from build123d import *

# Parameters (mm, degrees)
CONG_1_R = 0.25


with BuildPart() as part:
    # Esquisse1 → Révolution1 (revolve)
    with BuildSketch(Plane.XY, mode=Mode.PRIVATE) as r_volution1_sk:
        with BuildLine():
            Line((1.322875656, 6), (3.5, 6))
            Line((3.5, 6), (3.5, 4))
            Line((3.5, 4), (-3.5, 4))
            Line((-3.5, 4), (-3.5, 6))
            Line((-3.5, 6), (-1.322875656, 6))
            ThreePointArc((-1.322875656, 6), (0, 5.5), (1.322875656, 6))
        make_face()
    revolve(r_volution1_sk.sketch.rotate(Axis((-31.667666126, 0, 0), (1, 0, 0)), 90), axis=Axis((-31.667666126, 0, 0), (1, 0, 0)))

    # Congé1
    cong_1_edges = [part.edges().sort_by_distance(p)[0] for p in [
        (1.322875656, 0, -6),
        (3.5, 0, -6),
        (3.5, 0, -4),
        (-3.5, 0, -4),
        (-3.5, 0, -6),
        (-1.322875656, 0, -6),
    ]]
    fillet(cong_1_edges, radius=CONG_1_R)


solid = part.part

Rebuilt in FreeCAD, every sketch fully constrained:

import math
import FreeCAD as App
import Part
import Sketcher
from FreeCAD import Vector
Q = App.Units.Quantity


def edges_at(feature, points):
    """Names of the edges that pass closest to the given points."""
    edges = feature.Shape.Edges
    near = lambda p: min(range(len(edges)), key=lambda i: edges[i].distToShape(Part.Vertex(*p))[0])
    return sorted({f"Edge{near(p) + 1}" for p in points})

doc = App.newDocument("Part")
body = doc.addObject("PartDesign::Body", "Body")

sketch1 = body.newObject("Sketcher::SketchObject", "Sketch")
sketch1.AttachmentSupport = (doc.getObject("XY_Plane"), [""])
sketch1.MapMode = "FlatFace"
sketch1.addGeometry([
    Part.LineSegment(Vector(3.5, 6, 0), Vector(1.3, 6, 0)),
    Part.ArcOfCircle(Part.Circle(Vector(0, 7.5, 0), Vector(0, 0, 1), 2), math.radians(-131), math.radians(-49)),
    Part.LineSegment(Vector(-1.3, 6, 0), Vector(-3.5, 6, 0)),
    Part.LineSegment(Vector(-3.5, 6, 0), Vector(-3.5, 4, 0)),
    Part.LineSegment(Vector(-3.5, 4, 0), Vector(3.5, 4, 0)),
    Part.LineSegment(Vector(3.5, 4, 0), Vector(3.5, 6, 0)),
], False)
sketch1.addConstraint([
    Sketcher.Constraint("Coincident", 0, 2, 1, 2),
    Sketcher.Constraint("Coincident", 1, 1, 2, 1),
    Sketcher.Constraint("Coincident", 2, 2, 3, 1),
    Sketcher.Constraint("Coincident", 3, 2, 4, 1),
    Sketcher.Constraint("Coincident", 4, 2, 5, 1),
    Sketcher.Constraint("Coincident", 5, 2, 0, 1),
    Sketcher.Constraint("Horizontal", 0),
    Sketcher.Constraint("Horizontal", 2),
    Sketcher.Constraint("Vertical", 3),
    Sketcher.Constraint("Horizontal", 4),
    Sketcher.Constraint("Vertical", 5),
    Sketcher.Constraint("Symmetric", 0, 2, 1, 1, -2),
    Sketcher.Constraint("Equal", 0, 2),
    Sketcher.Constraint("Radius", 1, Q("2 mm")),
    Sketcher.Constraint("DistanceX", 4, 1, 4, 2, Q("7 mm")),
    Sketcher.Constraint("DistanceY", 3, 2, 3, 1, Q("2 mm")),
    Sketcher.Constraint("DistanceY", -1, 1, 0, 2, Q("6 mm")),
    Sketcher.Constraint("DistanceY", -1, 1, 1, 3, Q("7.5 mm")),
])
revolution = body.newObject("PartDesign::Revolution", "Revolution")
revolution.Profile = sketch1
revolution.ReferenceAxis = (sketch1, ["H_Axis"])
revolution.Angle = 360
doc.recompute()

fillet = body.newObject("PartDesign::Fillet", "Fillet")
fillet.Base = (revolution, edges_at(revolution, [
    (1.323, 0, -6),
    (3.5, 0, -6),
    (3.5, 0, -4),
    (-3.5, 0, -4),
    (-3.5, 0, -6),
    (-1.323, 0, -6),
]))
fillet.Radius = 0.25

doc.recompute()
